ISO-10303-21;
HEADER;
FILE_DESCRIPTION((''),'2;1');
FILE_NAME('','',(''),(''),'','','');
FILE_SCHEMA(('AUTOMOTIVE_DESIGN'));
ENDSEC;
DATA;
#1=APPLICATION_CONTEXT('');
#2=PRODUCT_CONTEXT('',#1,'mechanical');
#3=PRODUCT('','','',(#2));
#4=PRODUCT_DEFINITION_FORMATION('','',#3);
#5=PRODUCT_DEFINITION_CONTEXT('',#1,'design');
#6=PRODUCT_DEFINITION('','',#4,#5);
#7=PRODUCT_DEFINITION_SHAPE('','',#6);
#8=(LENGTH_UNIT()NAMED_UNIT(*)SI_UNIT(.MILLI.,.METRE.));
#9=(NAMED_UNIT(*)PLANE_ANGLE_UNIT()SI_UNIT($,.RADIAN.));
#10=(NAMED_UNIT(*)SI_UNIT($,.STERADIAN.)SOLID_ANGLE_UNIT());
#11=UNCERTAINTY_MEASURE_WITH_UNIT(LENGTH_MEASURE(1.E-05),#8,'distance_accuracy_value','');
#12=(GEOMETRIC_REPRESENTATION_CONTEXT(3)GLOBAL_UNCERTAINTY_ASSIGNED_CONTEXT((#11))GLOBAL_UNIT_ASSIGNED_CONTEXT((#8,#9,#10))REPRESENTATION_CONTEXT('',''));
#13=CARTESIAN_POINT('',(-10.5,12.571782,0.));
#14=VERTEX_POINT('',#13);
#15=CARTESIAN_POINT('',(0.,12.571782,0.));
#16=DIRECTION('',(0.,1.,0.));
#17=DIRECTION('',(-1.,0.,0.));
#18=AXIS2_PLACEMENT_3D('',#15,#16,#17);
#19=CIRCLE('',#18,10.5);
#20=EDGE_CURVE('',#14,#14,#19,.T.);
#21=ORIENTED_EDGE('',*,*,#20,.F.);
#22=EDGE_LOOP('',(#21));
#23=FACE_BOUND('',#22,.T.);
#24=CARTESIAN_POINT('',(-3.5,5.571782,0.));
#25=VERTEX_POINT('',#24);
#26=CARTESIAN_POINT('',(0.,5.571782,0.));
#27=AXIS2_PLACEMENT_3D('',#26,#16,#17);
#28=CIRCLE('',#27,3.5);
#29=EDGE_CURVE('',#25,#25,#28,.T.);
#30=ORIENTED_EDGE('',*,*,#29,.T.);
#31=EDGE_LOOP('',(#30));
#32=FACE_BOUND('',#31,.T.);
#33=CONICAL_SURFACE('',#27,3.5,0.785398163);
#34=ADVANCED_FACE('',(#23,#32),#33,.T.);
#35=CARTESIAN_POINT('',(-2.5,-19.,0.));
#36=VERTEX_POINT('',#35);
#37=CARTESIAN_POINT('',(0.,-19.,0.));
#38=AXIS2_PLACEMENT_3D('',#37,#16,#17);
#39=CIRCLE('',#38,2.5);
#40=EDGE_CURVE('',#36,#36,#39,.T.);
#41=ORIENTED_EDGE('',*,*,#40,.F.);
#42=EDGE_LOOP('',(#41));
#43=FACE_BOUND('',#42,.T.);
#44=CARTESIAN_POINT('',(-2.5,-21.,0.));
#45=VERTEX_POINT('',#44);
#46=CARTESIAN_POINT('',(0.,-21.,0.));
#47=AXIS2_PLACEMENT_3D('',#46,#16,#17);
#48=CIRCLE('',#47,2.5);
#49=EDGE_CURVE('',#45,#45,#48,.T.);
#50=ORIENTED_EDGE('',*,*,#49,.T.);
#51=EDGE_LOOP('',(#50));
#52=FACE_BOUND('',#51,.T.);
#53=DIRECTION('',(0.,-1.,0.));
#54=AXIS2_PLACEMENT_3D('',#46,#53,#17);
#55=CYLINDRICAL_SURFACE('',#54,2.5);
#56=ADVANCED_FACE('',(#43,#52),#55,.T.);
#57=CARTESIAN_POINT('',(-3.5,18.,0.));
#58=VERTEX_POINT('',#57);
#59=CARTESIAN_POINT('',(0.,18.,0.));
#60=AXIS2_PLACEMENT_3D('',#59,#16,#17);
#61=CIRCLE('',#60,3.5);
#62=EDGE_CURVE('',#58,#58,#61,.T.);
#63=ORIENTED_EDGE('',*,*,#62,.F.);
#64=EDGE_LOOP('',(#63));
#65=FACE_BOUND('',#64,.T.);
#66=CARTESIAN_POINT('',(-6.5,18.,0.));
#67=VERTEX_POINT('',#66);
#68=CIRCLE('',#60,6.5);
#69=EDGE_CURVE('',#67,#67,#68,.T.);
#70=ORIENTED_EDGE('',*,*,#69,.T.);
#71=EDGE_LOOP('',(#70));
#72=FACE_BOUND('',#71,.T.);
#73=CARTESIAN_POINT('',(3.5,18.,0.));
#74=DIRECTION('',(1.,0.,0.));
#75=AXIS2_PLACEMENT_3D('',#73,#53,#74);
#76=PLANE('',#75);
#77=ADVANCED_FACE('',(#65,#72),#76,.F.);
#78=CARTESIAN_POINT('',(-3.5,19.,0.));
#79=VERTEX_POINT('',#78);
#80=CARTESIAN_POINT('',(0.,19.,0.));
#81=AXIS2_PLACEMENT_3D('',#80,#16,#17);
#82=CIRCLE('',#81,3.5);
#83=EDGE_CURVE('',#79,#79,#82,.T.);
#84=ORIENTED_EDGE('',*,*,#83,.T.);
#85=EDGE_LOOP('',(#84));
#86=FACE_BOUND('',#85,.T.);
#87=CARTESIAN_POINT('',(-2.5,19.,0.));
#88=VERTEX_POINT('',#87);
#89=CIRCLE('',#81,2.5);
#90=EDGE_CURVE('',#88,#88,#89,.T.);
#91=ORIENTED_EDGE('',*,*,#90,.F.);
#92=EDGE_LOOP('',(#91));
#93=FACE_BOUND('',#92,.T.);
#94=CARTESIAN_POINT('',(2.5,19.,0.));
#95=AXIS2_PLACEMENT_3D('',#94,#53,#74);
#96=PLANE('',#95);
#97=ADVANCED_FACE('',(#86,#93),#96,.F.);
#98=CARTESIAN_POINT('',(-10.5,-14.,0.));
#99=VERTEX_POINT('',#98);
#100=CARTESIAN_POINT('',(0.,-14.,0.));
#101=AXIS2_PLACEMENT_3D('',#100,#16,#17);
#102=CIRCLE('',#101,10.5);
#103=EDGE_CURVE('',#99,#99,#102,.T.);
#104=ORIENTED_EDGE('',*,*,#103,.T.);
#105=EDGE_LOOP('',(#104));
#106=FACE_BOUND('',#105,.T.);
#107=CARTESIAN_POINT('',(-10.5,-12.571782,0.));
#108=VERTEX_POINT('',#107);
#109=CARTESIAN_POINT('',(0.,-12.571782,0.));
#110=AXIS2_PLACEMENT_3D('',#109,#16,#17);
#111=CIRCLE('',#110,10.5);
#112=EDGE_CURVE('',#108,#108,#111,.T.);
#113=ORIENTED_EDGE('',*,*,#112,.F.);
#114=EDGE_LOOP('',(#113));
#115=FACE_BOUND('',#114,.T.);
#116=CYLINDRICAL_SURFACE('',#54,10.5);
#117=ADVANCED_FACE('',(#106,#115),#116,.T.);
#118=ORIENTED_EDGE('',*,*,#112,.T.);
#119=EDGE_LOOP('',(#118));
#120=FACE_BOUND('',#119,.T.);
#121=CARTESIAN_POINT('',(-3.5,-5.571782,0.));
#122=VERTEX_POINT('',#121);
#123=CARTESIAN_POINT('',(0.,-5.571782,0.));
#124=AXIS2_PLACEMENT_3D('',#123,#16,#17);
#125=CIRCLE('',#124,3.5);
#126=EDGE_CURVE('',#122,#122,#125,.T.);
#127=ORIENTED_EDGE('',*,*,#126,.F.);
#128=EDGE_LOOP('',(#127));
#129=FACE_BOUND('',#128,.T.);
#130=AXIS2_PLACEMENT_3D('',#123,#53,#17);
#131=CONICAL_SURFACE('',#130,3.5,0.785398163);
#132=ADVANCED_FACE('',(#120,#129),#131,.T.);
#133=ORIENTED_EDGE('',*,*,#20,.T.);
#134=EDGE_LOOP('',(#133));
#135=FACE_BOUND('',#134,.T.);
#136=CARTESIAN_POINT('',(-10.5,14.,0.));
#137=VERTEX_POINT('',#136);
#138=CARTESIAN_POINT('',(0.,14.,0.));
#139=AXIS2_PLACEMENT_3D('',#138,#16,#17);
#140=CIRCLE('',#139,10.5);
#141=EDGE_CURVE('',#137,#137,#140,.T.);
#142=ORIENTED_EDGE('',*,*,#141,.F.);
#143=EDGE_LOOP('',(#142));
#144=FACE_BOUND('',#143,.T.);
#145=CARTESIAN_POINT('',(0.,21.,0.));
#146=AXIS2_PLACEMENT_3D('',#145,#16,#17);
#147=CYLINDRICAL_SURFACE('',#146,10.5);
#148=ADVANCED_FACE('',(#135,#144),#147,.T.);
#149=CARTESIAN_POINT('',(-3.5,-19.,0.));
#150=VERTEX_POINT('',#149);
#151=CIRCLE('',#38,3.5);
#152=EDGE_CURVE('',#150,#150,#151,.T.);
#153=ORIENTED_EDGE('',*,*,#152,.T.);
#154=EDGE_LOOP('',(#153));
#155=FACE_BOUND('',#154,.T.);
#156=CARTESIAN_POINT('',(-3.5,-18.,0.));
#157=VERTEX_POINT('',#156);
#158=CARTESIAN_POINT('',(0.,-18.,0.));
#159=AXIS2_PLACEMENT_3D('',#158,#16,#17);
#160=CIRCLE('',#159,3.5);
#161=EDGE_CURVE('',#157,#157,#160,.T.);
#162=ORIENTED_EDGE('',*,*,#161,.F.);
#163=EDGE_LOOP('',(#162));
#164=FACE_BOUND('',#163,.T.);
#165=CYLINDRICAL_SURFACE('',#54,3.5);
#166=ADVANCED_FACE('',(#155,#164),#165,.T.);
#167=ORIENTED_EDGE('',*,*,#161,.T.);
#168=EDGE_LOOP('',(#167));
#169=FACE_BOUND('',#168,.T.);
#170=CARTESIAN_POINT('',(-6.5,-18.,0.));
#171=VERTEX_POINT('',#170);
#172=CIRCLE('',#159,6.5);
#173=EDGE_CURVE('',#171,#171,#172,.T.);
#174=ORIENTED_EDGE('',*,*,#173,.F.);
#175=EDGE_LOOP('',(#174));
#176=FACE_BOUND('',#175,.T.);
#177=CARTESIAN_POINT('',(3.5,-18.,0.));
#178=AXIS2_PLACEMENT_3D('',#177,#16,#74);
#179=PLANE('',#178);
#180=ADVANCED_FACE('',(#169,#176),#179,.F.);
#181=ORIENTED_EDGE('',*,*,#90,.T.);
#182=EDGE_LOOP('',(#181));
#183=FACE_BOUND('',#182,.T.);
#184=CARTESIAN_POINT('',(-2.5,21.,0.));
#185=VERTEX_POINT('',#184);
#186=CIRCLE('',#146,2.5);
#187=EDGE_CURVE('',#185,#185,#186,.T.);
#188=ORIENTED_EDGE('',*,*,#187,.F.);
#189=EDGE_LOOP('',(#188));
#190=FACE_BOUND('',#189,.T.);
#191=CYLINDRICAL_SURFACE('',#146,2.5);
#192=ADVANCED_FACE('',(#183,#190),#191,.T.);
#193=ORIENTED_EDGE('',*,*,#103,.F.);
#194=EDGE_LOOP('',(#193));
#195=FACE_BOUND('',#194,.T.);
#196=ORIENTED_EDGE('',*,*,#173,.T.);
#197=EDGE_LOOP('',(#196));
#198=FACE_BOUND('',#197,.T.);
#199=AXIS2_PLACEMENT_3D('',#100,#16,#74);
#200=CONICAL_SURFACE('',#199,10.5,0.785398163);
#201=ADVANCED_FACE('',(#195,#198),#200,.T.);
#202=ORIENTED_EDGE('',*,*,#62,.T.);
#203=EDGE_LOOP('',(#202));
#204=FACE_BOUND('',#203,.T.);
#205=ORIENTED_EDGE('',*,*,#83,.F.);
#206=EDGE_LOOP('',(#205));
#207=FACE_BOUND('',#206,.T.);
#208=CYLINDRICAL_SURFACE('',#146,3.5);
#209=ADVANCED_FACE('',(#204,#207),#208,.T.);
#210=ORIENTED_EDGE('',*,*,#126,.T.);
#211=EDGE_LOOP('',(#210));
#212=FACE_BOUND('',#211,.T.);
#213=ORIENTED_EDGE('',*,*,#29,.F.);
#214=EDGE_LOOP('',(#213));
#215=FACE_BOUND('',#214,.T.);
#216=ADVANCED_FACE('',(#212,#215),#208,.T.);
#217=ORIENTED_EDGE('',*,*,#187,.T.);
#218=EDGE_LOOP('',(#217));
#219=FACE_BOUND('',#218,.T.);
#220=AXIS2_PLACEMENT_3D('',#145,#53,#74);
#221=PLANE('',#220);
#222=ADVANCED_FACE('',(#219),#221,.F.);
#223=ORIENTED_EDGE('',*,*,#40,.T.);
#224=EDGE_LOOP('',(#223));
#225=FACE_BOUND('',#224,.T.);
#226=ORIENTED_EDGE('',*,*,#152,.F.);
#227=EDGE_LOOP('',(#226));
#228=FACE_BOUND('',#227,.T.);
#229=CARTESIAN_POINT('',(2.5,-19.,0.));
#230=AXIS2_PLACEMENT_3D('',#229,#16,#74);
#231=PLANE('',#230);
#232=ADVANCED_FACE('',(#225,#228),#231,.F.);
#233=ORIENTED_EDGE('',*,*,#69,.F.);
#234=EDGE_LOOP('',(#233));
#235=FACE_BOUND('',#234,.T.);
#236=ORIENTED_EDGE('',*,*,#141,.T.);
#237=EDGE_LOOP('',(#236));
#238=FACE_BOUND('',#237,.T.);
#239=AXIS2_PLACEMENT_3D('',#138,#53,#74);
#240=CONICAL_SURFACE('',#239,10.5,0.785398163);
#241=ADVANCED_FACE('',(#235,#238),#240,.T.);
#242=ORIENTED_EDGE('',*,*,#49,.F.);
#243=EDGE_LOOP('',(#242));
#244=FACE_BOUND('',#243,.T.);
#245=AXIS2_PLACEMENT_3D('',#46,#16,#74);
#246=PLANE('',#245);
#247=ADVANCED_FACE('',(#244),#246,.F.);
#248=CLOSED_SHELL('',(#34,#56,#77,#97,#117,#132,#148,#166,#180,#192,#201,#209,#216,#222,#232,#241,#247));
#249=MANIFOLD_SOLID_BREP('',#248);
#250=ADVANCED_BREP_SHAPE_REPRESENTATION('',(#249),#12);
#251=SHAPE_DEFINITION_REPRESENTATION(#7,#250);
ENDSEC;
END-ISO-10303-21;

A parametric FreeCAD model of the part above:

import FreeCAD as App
import Part
import Sketcher
Q = App.Units.Quantity


def add_polygon(sketch, points):
    """Adds a closed chain of lines whose ends are joined by coincident constraints."""
    first, n = sketch.GeometryCount, len(points)
    for a, b in zip(points, points[1:] + points[:1]):
        sketch.addGeometry(Part.LineSegment(App.Vector(*a, 0), App.Vector(*b, 0)), False)
    for i in range(n):
        sketch.addConstraint(Sketcher.Constraint("Coincident", first + i, 2, first + (i + 1) % n, 1))

doc = App.newDocument("Part")
body = doc.addObject("PartDesign::Body", "Body")

sketch1 = body.newObject("Sketcher::SketchObject", "Sketch")
sketch1.AttachmentSupport = (doc.getObject("XY_Plane"), [""])
sketch1.MapMode = "FlatFace"
add_polygon(sketch1, [(0, 21), (0, 0), (3.5, 0), (3.5, 5.6), (10.5, 12.6), (10.5, 14), (6.5, 18), (3.5, 18), (3.5, 19), (2.5, 19), (2.5, 21)])
sketch1.addConstraint(Sketcher.Constraint("Vertical", 0))
sketch1.addConstraint(Sketcher.Constraint("Horizontal", 1))
sketch1.addConstraint(Sketcher.Constraint("Vertical", 2))
sketch1.addConstraint(Sketcher.Constraint("Vertical", 4))
sketch1.addConstraint(Sketcher.Constraint("Horizontal", 6))
sketch1.addConstraint(Sketcher.Constraint("Vertical", 7))
sketch1.addConstraint(Sketcher.Constraint("Horizontal", 8))
sketch1.addConstraint(Sketcher.Constraint("Vertical", 9))
sketch1.addConstraint(Sketcher.Constraint("Horizontal", 10))
sketch1.addConstraint(Sketcher.Constraint("Coincident", 0, 2, -1, 1))
sketch1.addConstraint(Sketcher.Constraint("Perpendicular", 3, 5))
sketch1.addConstraint(Sketcher.Constraint("Vertical", 2, 2, 6, 2))
sketch1.addConstraint(Sketcher.Constraint("Equal", 8, 7))
sketch1.addConstraint(Sketcher.Constraint("DistanceX", 6, 2, 6, 1, 3.0))
sketch1.addConstraint(Sketcher.Constraint("DistanceX", 8, 2, 8, 1, 1.0))
sketch1.addConstraint(Sketcher.Constraint("DistanceY", 0, 2, 0, 1, 21.0))
sketch1.addConstraint(Sketcher.Constraint("DistanceY", 9, 1, 9, 2, 2.0))
sketch1.addConstraint(Sketcher.Constraint("Angle", 3, Q("45 deg")))
sketch1.addConstraint(Sketcher.Constraint("DistanceX", 1, 1, 1, 2, 3.5))
sketch1.addConstraint(Sketcher.Constraint("DistanceY", -1, 1, 4, 2, 14.0))
sketch1.addConstraint(Sketcher.Constraint("DistanceY", 2, 1, 2, 2, 5.571782))
revolution = body.newObject("PartDesign::Revolution", "Revolution")
revolution.Profile = sketch1
revolution.ReferenceAxis = (sketch1, ["V_Axis"])
revolution.Angle = 360
doc.recompute()

mirrored = body.newObject("PartDesign::Mirrored", "Mirrored")
mirrored.Originals = [revolution]
mirrored.MirrorPlane = (doc.getObject("XZ_Plane"), [""])
body.Tip = mirrored

doc.recompute()
